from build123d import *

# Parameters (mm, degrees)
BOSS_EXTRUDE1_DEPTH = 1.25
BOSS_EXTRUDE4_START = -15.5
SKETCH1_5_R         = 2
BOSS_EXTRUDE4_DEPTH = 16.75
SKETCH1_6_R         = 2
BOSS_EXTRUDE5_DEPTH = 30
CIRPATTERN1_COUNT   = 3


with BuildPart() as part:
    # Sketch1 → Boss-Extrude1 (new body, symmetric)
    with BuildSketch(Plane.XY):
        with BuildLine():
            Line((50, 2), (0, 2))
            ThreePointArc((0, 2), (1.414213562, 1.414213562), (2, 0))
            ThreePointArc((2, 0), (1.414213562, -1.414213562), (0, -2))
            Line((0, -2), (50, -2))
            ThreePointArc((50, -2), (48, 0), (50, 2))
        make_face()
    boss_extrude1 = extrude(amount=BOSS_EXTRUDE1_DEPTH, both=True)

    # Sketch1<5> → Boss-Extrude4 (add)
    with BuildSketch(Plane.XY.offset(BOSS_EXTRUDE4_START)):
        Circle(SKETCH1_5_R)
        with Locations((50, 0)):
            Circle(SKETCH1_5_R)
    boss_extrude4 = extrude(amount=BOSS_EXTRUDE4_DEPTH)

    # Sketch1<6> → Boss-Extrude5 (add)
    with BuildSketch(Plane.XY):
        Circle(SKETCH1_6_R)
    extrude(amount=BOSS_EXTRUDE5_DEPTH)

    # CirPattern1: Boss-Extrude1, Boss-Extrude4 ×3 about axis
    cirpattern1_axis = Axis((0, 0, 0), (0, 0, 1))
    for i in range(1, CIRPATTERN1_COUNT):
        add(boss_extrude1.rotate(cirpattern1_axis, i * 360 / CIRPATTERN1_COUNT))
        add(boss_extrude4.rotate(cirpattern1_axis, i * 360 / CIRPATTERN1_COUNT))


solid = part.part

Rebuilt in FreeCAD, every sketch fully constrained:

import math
import FreeCAD as App
import Part
import Sketcher

V = App.Vector

doc = App.newDocument("Part")
body = doc.addObject("PartDesign::Body", "Body")

sketch1 = body.newObject("Sketcher::SketchObject", "Sketch")
sketch1.AttachmentSupport = (doc.getObject("XY_Plane"), [""])
sketch1.MapMode = "FlatFace"
sketch1.addGeometry([
    Part.LineSegment(V(50, 2, 0), V(0, 2, 0)),
    Part.ArcOfCircle(Part.Circle(V(0, 0, 0), V(0, 0, 1), 2), math.radians(0), math.radians(90)),
    Part.ArcOfCircle(Part.Circle(V(0, 0, 0), V(0, 0, 1), 2), math.radians(-90), math.radians(0)),
    Part.LineSegment(V(0, -2, 0), V(50, -2, 0)),
    Part.ArcOfCircle(Part.Circle(V(50, 0, 0), V(0, 0, 1), 2), math.radians(90), math.radians(270)),
], False)
sketch1.addConstraint([
    Sketcher.Constraint("Tangent", 0, 2, 1, 2),
    Sketcher.Constraint("Tangent", 1, 1, 2, 2),
    Sketcher.Constraint("Tangent", 2, 1, 3, 1),
    Sketcher.Constraint("Tangent", 3, 2, 4, 2),
    Sketcher.Constraint("Tangent", 4, 1, 0, 1),
    Sketcher.Constraint("Horizontal", 0),
    Sketcher.Constraint("Horizontal", 3),
    Sketcher.Constraint("Coincident", 1, 3, -1, 1),
    Sketcher.Constraint("Equal", 1, 2),
    Sketcher.Constraint("PointOnObject", 1, 1, -1),
    Sketcher.Constraint("Radius", 1, 2.0),
    Sketcher.Constraint("DistanceX", 0, 2, 0, 1, 50.0),
])
pad1 = body.newObject("PartDesign::Pad", "Pad")
pad1.Profile = sketch1
pad1.Length = 2.5
pad1.Midplane = True

sketch2 = body.newObject("Sketcher::SketchObject", "Sketch001")
sketch2.AttachmentSupport = (doc.getObject("XY_Plane"), [""])
sketch2.MapMode = "FlatFace"
sketch2.AttachmentOffset = App.Placement(V(0, 0, -15.5), App.Rotation())
sketch2.addGeometry([
    Part.Circle(V(0, 0, 0), V(0, 0, 1), 2),
    Part.Circle(V(50, 0, 0), V(0, 0, 1), 2),
], False)
sketch2.addConstraint([
    Sketcher.Constraint("Coincident", 0, 3, -1, 1),
    Sketcher.Constraint("Equal", 0, 1),
    Sketcher.Constraint("PointOnObject", 1, 3, -1),
    Sketcher.Constraint("Diameter", 0, 4.0),
    Sketcher.Constraint("DistanceX", -1, 1, 1, 3, 50.0),
])
pad2 = body.newObject("PartDesign::Pad", "Pad001")
pad2.Profile = sketch2
pad2.Length = 16.75

sketch3 = body.newObject("Sketcher::SketchObject", "Sketch002")
sketch3.AttachmentSupport = (doc.getObject("XY_Plane"), [""])
sketch3.MapMode = "FlatFace"
sketch3.addGeometry(Part.Circle(V(0, 0, 0), V(0, 0, 1), 2), False)
sketch3.addConstraint([
    Sketcher.Constraint("Coincident", 0, 3, -1, 1),
    Sketcher.Constraint("Diameter", 0, 4.0),
])
pad3 = body.newObject("PartDesign::Pad", "Pad002")
pad3.Profile = sketch3
pad3.Length = 30
doc.recompute()

polarpattern = body.newObject("PartDesign::PolarPattern", "PolarPattern")
polarpattern.Originals = [pad1, pad2]
polarpattern.Axis = (doc.getObject("Z_Axis"), [""])
polarpattern.Angle = 360
polarpattern.Occurrences = 3
body.Tip = polarpattern

doc.recompute()
